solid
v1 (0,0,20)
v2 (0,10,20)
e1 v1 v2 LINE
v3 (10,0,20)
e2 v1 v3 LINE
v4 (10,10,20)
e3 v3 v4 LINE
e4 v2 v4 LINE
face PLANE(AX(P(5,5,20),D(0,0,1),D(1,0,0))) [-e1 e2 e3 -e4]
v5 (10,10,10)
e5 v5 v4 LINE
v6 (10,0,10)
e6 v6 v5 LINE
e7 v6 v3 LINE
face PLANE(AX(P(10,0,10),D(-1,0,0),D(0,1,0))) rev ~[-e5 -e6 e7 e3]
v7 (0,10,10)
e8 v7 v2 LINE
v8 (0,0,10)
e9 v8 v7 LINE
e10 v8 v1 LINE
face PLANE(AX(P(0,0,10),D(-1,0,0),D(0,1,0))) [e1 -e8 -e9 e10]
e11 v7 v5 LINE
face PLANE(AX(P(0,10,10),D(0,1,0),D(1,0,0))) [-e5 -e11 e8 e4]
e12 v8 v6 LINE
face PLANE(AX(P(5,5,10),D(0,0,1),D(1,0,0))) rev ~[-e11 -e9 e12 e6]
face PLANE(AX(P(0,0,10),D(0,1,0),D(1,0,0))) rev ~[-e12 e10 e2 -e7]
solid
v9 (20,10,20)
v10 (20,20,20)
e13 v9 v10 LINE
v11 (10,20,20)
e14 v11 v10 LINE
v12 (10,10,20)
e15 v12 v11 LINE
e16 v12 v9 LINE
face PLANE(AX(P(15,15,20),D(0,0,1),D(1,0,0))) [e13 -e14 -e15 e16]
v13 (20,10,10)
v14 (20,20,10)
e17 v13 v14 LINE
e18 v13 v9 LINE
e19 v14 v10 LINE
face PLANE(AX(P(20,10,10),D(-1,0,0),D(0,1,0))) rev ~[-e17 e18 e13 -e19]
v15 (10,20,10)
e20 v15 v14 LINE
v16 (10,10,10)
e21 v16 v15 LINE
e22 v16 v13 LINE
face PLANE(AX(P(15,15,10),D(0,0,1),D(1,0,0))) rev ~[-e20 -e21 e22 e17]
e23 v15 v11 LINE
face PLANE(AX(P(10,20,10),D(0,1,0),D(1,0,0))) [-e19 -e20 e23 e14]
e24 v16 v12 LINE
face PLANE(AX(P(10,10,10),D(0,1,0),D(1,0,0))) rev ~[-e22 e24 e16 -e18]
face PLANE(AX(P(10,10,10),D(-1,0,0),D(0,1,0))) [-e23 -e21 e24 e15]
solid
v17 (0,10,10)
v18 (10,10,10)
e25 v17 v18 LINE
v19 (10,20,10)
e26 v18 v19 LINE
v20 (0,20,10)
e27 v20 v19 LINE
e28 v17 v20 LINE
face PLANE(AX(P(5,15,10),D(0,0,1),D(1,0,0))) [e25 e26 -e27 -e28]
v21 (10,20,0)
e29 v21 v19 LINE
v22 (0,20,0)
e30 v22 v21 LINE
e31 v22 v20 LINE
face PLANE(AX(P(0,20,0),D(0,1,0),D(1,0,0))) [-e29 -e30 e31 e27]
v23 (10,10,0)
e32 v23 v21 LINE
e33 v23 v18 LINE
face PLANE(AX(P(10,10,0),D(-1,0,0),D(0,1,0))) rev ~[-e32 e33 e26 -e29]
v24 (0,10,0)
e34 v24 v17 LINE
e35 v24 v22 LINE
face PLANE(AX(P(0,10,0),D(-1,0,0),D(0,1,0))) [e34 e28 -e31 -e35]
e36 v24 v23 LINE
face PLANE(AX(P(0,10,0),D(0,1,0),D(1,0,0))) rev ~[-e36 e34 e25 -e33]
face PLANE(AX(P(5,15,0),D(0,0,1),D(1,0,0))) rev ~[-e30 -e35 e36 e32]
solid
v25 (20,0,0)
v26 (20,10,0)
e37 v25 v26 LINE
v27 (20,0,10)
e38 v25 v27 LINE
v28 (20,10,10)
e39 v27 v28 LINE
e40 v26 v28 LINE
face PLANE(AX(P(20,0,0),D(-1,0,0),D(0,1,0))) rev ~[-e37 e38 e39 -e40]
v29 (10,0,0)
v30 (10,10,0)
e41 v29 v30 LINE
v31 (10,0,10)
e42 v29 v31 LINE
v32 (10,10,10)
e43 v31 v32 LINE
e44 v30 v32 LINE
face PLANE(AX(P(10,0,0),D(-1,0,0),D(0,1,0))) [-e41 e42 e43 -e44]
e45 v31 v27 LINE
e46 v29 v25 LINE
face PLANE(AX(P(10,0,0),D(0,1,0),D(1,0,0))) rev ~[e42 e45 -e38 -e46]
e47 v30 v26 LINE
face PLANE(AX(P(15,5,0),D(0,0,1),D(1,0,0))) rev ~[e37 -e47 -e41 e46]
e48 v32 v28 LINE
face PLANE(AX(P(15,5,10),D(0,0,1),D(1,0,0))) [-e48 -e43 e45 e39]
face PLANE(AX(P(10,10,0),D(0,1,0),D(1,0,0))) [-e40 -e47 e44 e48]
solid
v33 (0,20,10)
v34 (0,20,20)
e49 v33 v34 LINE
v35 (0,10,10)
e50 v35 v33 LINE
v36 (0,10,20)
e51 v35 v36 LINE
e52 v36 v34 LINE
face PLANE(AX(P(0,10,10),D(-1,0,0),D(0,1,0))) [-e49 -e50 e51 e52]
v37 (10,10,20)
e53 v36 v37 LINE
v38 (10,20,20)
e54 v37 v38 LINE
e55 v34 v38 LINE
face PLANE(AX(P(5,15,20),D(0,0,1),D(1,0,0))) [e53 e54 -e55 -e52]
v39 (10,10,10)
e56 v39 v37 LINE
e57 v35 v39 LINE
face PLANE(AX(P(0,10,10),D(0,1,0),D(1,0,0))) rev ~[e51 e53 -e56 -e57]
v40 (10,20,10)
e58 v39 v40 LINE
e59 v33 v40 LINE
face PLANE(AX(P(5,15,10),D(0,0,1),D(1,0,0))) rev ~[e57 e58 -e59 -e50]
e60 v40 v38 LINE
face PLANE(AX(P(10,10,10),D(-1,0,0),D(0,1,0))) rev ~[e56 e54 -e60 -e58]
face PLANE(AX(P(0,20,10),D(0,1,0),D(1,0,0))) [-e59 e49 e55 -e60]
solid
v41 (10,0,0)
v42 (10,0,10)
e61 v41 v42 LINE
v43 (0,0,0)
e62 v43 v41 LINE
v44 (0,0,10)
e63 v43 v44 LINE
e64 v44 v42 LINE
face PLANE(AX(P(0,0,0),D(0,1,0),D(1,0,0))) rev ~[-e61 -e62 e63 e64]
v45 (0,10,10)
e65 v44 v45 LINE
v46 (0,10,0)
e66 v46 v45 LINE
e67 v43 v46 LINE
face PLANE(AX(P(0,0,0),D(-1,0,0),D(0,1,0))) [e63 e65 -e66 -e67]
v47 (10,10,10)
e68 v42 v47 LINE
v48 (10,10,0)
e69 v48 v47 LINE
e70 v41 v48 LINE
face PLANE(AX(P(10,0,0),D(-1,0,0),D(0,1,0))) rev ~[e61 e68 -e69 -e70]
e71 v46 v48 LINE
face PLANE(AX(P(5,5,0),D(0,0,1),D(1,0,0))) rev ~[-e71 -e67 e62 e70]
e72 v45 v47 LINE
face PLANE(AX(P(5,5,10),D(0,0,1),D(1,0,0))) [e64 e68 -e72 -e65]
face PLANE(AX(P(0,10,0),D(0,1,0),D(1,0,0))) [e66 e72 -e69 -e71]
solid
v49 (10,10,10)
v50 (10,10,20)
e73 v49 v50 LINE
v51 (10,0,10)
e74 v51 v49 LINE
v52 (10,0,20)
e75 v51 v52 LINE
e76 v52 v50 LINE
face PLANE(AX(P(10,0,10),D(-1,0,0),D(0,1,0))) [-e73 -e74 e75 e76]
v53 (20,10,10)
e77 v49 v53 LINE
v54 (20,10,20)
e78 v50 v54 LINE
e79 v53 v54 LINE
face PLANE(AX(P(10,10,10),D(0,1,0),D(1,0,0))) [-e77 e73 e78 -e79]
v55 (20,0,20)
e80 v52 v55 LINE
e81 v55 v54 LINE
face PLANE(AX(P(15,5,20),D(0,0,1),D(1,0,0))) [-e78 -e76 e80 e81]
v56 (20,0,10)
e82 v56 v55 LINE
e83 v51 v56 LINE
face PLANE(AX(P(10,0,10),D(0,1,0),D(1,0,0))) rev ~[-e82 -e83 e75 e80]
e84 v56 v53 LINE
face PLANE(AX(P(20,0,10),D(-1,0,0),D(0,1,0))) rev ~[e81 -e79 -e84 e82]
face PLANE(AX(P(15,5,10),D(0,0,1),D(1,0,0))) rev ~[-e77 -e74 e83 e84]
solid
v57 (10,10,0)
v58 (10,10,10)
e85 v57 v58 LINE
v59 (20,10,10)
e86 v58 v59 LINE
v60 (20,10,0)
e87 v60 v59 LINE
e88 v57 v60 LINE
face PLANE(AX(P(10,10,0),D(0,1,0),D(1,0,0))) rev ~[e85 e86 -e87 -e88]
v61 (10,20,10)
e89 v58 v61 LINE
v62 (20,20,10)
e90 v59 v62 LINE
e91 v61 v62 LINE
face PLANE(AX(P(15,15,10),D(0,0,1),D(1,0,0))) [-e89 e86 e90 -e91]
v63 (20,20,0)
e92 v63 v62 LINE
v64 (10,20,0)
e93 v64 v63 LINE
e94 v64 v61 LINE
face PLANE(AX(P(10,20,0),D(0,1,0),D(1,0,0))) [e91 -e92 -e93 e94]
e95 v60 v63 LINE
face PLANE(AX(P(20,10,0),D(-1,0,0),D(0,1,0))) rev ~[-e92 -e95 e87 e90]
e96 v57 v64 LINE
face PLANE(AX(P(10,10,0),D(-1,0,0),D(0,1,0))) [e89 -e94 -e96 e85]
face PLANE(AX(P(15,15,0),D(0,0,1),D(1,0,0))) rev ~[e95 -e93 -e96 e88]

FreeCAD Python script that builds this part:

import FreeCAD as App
import Part
import Sketcher


def add_polygon(sketch, points):
    """Adds a closed chain of lines whose ends are joined by coincident constraints."""
    first, n = sketch.GeometryCount, len(points)
    for a, b in zip(points, points[1:] + points[:1]):
        sketch.addGeometry(Part.LineSegment(App.Vector(*a, 0), App.Vector(*b, 0)), False)
    for i in range(n):
        sketch.addConstraint(Sketcher.Constraint("Coincident", first + i, 2, first + (i + 1) % n, 1))

doc = App.newDocument("Part")
body = doc.addObject("PartDesign::Body", "Body")

# Sketch on XY plane
sketch1 = doc.addObject("Sketcher::SketchObject", "Sketch")
body.addObject(sketch1)
sketch1.AttachmentSupport = (doc.XY_Plane, [""])
sketch1.MapMode = "FlatFace"
add_polygon(sketch1, [(0, 10), (0, 0), (10, 0), (10, 10)])  # lines 0-3
sketch1.addConstraint([
    Sketcher.Constraint("Vertical", 0),
    Sketcher.Constraint("Horizontal", 1),
    Sketcher.Constraint("Vertical", 2),
    Sketcher.Constraint("Horizontal", 3),
    Sketcher.Constraint("Coincident", 0, 2, -1, 1),
    Sketcher.Constraint("Equal", 3, 0),
    Sketcher.Constraint("DistanceX", 1, 1, 1, 2, 10.0),
])
pad1 = doc.addObject("PartDesign::Pad", "Pad")
body.addObject(pad1)
pad1.Profile = sketch1
pad1.Length = 10
body2 = doc.addObject("PartDesign::Body", "Body001")

# Sketch on XY plane
sketch2 = doc.addObject("Sketcher::SketchObject", "Sketch001")
body2.addObject(sketch2)
sketch2.AttachmentSupport = (doc.getObject("XY_Plane001"), [""])
sketch2.MapMode = "FlatFace"
add_polygon(sketch2, [(10, 10), (10, 0), (20, 0), (20, 10)])  # lines 0-3
sketch2.addConstraint([
    Sketcher.Constraint("Vertical", 0),
    Sketcher.Constraint("Horizontal", 1),
    Sketcher.Constraint("Vertical", 2),
    Sketcher.Constraint("Horizontal", 3),
    Sketcher.Constraint("PointOnObject", 0, 2, -1),
    Sketcher.Constraint("Equal", 3, 0),
    Sketcher.Constraint("DistanceX", 1, 1, 1, 2, 10.0),
    Sketcher.Constraint("DistanceX", -1, 1, 0, 2, 10.0),
])
pad2 = doc.addObject("PartDesign::Pad", "Pad001")
body2.addObject(pad2)
pad2.Profile = sketch2
pad2.Length = 10
body3 = doc.addObject("PartDesign::Body", "Body002")

# Sketch on XY plane
sketch3 = doc.addObject("Sketcher::SketchObject", "Sketch002")
body3.addObject(sketch3)
sketch3.AttachmentSupport = (doc.getObject("XY_Plane002"), [""])
sketch3.MapMode = "FlatFace"
add_polygon(sketch3, [(10, 20), (10, 10), (20, 10), (20, 20)])  # lines 0-3
sketch3.addConstraint([
    Sketcher.Constraint("Vertical", 0),
    Sketcher.Constraint("Horizontal", 1),
    Sketcher.Constraint("Vertical", 2),
    Sketcher.Constraint("Horizontal", 3),
    Sketcher.Constraint("Equal", 3, 0),
    Sketcher.Constraint("DistanceX", 1, 1, 1, 2, 10.0),
    Sketcher.Constraint("DistanceX", -1, 1, 0, 2, 10.0),
    Sketcher.Constraint("DistanceY", -1, 1, 0, 2, 10.0),
])
pad3 = doc.addObject("PartDesign::Pad", "Pad002")
body3.addObject(pad3)
pad3.Profile = sketch3
pad3.Length = 10
body4 = doc.addObject("PartDesign::Body", "Body003")

# Sketch on XY plane
sketch4 = doc.addObject("Sketcher::SketchObject", "Sketch003")
body4.addObject(sketch4)
sketch4.AttachmentSupport = (doc.getObject("XY_Plane003"), [""])
sketch4.MapMode = "FlatFace"
add_polygon(sketch4, [(0, 20), (0, 10), (10, 10), (10, 20)])  # lines 0-3
sketch4.addConstraint([
    Sketcher.Constraint("Vertical", 0),
    Sketcher.Constraint("Horizontal", 1),
    Sketcher.Constraint("Vertical", 2),
    Sketcher.Constraint("Horizontal", 3),
    Sketcher.Constraint("PointOnObject", 0, 2, -2),
    Sketcher.Constraint("Equal", 3, 0),
    Sketcher.Constraint("DistanceX", 1, 1, 1, 2, 10.0),
    Sketcher.Constraint("DistanceY", -1, 1, 0, 2, 10.0),
])
pad4 = doc.addObject("PartDesign::Pad", "Pad003")
body4.addObject(pad4)
pad4.Profile = sketch4
pad4.Length = 10
body5 = doc.addObject("PartDesign::Body", "Body004")

# Sketch on XY plane
sketch5 = doc.addObject("Sketcher::SketchObject", "Sketch004")
body5.addObject(sketch5)
sketch5.AttachmentSupport = (doc.getObject("XY_Plane004"), [""])
sketch5.MapMode = "FlatFace"
sketch5.AttachmentOffset = App.Placement(App.Vector(0, 0, 10), App.Rotation())
add_polygon(sketch5, [(0, 10), (0, 0), (10, 0), (10, 10)])  # lines 0-3
sketch5.addConstraint([
    Sketcher.Constraint("Vertical", 0),
    Sketcher.Constraint("Horizontal", 1),
    Sketcher.Constraint("Vertical", 2),
    Sketcher.Constraint("Horizontal", 3),
    Sketcher.Constraint("Coincident", 0, 2, -1, 1),
    Sketcher.Constraint("Equal", 3, 0),
    Sketcher.Constraint("DistanceX", 1, 1, 1, 2, 10.0),
])
pad5 = doc.addObject("PartDesign::Pad", "Pad004")
body5.addObject(pad5)
pad5.Profile = sketch5
pad5.Length = 10
body6 = doc.addObject("PartDesign::Body", "Body005")

# Sketch on XY plane
sketch6 = doc.addObject("Sketcher::SketchObject", "Sketch005")
body6.addObject(sketch6)
sketch6.AttachmentSupport = (doc.getObject("XY_Plane005"), [""])
sketch6.MapMode = "FlatFace"
sketch6.AttachmentOffset = App.Placement(App.Vector(0, 0, 10), App.Rotation())
add_polygon(sketch6, [(10, 10), (10, 0), (20, 0), (20, 10)])  # lines 0-3
sketch6.addConstraint([
    Sketcher.Constraint("Vertical", 0),
    Sketcher.Constraint("Horizontal", 1),
    Sketcher.Constraint("Vertical", 2),
    Sketcher.Constraint("Horizontal", 3),
    Sketcher.Constraint("PointOnObject", 0, 2, -1),
    Sketcher.Constraint("Equal", 3, 0),
    Sketcher.Constraint("DistanceX", 1, 1, 1, 2, 10.0),
    Sketcher.Constraint("DistanceX", -1, 1, 0, 2, 10.0),
])
pad6 = doc.addObject("PartDesign::Pad", "Pad005")
body6.addObject(pad6)
pad6.Profile = sketch6
pad6.Length = 10
body7 = doc.addObject("PartDesign::Body", "Body006")

# Sketch on XY plane
sketch7 = doc.addObject("Sketcher::SketchObject", "Sketch006")
body7.addObject(sketch7)
sketch7.AttachmentSupport = (doc.getObject("XY_Plane006"), [""])
sketch7.MapMode = "FlatFace"
sketch7.AttachmentOffset = App.Placement(App.Vector(0, 0, 10), App.Rotation())
add_polygon(sketch7, [(0, 20), (0, 10), (10, 10), (10, 20)])  # lines 0-3
sketch7.addConstraint([
    Sketcher.Constraint("Vertical", 0),
    Sketcher.Constraint("Horizontal", 1),
    Sketcher.Constraint("Vertical", 2),
    Sketcher.Constraint("Horizontal", 3),
    Sketcher.Constraint("PointOnObject", 0, 2, -2),
    Sketcher.Constraint("Equal", 3, 0),
    Sketcher.Constraint("DistanceX", 1, 1, 1, 2, 10.0),
    Sketcher.Constraint("DistanceY", -1, 1, 0, 2, 10.0),
])
pad7 = doc.addObject("PartDesign::Pad", "Pad006")
body7.addObject(pad7)
pad7.Profile = sketch7
pad7.Length = 10
body8 = doc.addObject("PartDesign::Body", "Body007")

# Sketch on XY plane
sketch8 = doc.addObject("Sketcher::SketchObject", "Sketch007")
body8.addObject(sketch8)
sketch8.AttachmentSupport = (doc.getObject("XY_Plane007"), [""])
sketch8.MapMode = "FlatFace"
sketch8.AttachmentOffset = App.Placement(App.Vector(0, 0, 10), App.Rotation())
add_polygon(sketch8, [(10, 20), (10, 10), (20, 10), (20, 20)])  # lines 0-3
sketch8.addConstraint([
    Sketcher.Constraint("Vertical", 0),
    Sketcher.Constraint("Horizontal", 1),
    Sketcher.Constraint("Vertical", 2),
    Sketcher.Constraint("Horizontal", 3),
    Sketcher.Constraint("Equal", 3, 0),
    Sketcher.Constraint("DistanceX", 1, 1, 1, 2, 10.0),
    Sketcher.Constraint("DistanceX", -1, 1, 0, 2, 10.0),
    Sketcher.Constraint("DistanceY", -1, 1, 0, 2, 10.0),
])
pad8 = doc.addObject("PartDesign::Pad", "Pad007")
body8.addObject(pad8)
pad8.Profile = sketch8
pad8.Length = 10

doc.recompute()
